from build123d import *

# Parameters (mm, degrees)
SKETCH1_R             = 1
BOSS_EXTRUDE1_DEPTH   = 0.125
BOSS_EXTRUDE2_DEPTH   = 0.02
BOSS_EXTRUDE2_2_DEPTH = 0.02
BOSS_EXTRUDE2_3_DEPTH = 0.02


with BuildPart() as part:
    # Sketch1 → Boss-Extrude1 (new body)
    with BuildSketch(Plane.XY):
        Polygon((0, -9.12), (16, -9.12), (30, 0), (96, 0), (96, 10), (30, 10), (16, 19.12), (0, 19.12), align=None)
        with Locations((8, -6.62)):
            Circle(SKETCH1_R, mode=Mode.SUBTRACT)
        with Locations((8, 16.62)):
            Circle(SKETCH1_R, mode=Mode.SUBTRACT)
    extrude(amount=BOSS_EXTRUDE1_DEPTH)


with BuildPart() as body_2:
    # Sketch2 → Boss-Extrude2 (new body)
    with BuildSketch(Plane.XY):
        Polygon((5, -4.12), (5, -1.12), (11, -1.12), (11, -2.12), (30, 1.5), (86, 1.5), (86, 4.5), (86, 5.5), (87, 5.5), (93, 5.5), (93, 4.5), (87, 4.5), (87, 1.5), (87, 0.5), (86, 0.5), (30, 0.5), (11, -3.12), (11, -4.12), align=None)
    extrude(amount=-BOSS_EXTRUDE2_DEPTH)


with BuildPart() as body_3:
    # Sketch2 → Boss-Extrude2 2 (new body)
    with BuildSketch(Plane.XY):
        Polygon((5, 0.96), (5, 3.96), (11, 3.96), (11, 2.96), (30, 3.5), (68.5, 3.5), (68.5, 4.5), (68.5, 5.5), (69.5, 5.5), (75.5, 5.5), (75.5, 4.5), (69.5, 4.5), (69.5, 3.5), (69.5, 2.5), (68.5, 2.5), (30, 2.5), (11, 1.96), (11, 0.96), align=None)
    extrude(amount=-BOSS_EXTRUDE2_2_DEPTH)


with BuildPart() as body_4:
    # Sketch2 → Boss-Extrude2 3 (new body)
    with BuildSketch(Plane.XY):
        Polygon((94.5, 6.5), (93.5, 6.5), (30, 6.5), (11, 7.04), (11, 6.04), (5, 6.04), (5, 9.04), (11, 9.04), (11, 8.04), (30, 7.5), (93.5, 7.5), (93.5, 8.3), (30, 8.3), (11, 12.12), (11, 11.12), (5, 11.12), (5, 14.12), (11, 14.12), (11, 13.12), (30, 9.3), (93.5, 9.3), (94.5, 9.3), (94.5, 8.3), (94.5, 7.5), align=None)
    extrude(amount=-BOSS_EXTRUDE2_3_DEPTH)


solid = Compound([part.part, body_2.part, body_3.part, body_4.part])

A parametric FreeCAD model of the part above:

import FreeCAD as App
import Part
import Sketcher

V = App.Vector

doc = App.newDocument("Part")
body = doc.addObject("PartDesign::Body", "Body")

sketch1 = doc.addObject("Sketcher::SketchObject", "Sketch")
body.addObject(sketch1)
sketch1.AttachmentSupport = (doc.XY_Plane, [""])
sketch1.MapMode = "FlatFace"
sketch1.addGeometry([
    Part.LineSegment(V(0, -9.12, 0), V(16, -9.12, 0)),
    Part.LineSegment(V(16, -9.12, 0), V(30, 0, 0)),
    Part.LineSegment(V(30, 0, 0), V(96, 0, 0)),
    Part.LineSegment(V(96, 0, 0), V(96, 10, 0)),
    Part.LineSegment(V(96, 10, 0), V(30, 10, 0)),
    Part.LineSegment(V(30, 10, 0), V(16, 19.12, 0)),
    Part.LineSegment(V(16, 19.12, 0), V(0, 19.12, 0)),
    Part.LineSegment(V(0, 19.12, 0), V(0, -9.12, 0)),
    Part.Circle(V(8, -6.62, 0), V(0, 0, 1), 1),
    Part.Circle(V(8, 16.62, 0), V(0, 0, 1), 1),
], False)
sketch1.addConstraint([
    Sketcher.Constraint("Coincident", 0, 2, 1, 1),
    Sketcher.Constraint("Coincident", 1, 2, 2, 1),
    Sketcher.Constraint("Coincident", 2, 2, 3, 1),
    Sketcher.Constraint("Coincident", 3, 2, 4, 1),
    Sketcher.Constraint("Coincident", 4, 2, 5, 1),
    Sketcher.Constraint("Coincident", 5, 2, 6, 1),
    Sketcher.Constraint("Coincident", 6, 2, 7, 1),
    Sketcher.Constraint("Coincident", 7, 2, 0, 1),
    Sketcher.Constraint("Horizontal", 0),
    Sketcher.Constraint("Horizontal", 2),
    Sketcher.Constraint("Vertical", 3),
    Sketcher.Constraint("Horizontal", 4),
    Sketcher.Constraint("Horizontal", 6),
    Sketcher.Constraint("Vertical", 7),
    Sketcher.Constraint("Equal", 8, 9),
    Sketcher.Constraint("PointOnObject", 1, 2, -1),
    Sketcher.Constraint("PointOnObject", 6, 2, -2),
    Sketcher.Constraint("Vertical", 8, 3, 9, 3),
    Sketcher.Constraint("Vertical", 1, 2, 4, 2),
    Sketcher.Constraint("Vertical", 0, 2, 5, 2),
    Sketcher.Constraint("Equal", 1, 5),
    Sketcher.Constraint("Diameter", 8, 2.0),
    Sketcher.Constraint("DistanceX", 0, 1, 0, 2, 16.0),
    Sketcher.Constraint("DistanceX", 2, 1, 2, 2, 66.0),
    Sketcher.Constraint("DistanceY", 3, 1, 3, 2, 10.0),
    Sketcher.Constraint("DistanceX", -1, 1, 8, 3, 8.0),
    Sketcher.Constraint("DistanceX", -1, 1, 1, 2, 30.0),
    Sketcher.Constraint("DistanceY", 7, 2, 7, 1, 28.24),
    Sketcher.Constraint("DistanceY", 0, 2, 8, 3, 2.5),
    Sketcher.Constraint("DistanceY", 9, 3, 5, 2, 2.5),
])
pad1 = doc.addObject("PartDesign::Pad", "Pad")
body.addObject(pad1)
pad1.Profile = sketch1
pad1.Length = 0.125
body2 = doc.addObject("PartDesign::Body", "Body001")

sketch2 = doc.addObject("Sketcher::SketchObject", "Sketch001")
body2.addObject(sketch2)
sketch2.AttachmentSupport = (doc.getObject("XY_Plane001"), [""])
sketch2.MapMode = "FlatFace"
sketch2.addGeometry([
    Part.LineSegment(V(5, -1.12, 0), V(5, -4.12, 0)),
    Part.LineSegment(V(5, -4.12, 0), V(11, -4.12, 0)),
    Part.LineSegment(V(11, -4.12, 0), V(11, -3.12, 0)),
    Part.LineSegment(V(11, -3.12, 0), V(30, 0.5, 0)),
    Part.LineSegment(V(30, 0.5, 0), V(87, 0.5, 0)),
    Part.LineSegment(V(87, 0.5, 0), V(87, 4.5, 0)),
    Part.LineSegment(V(87, 4.5, 0), V(93, 4.5, 0)),
    Part.LineSegment(V(93, 4.5, 0), V(93, 5.5, 0)),
    Part.LineSegment(V(93, 5.5, 0), V(86, 5.5, 0)),
    Part.LineSegment(V(86, 5.5, 0), V(86, 1.5, 0)),
    Part.LineSegment(V(86, 1.5, 0), V(30, 1.5, 0)),
    Part.LineSegment(V(30, 1.5, 0), V(11, -2.12, 0)),
    Part.LineSegment(V(11, -2.12, 0), V(11, -1.12, 0)),
    Part.LineSegment(V(11, -1.12, 0), V(5, -1.12, 0)),
], False)
sketch2.addConstraint([
    Sketcher.Constraint("Coincident", 0, 2, 1, 1),
    Sketcher.Constraint("Coincident", 1, 2, 2, 1),
    Sketcher.Constraint("Coincident", 2, 2, 3, 1),
    Sketcher.Constraint("Coincident", 3, 2, 4, 1),
    Sketcher.Constraint("Coincident", 4, 2, 5, 1),
    Sketcher.Constraint("Coincident", 5, 2, 6, 1),
    Sketcher.Constraint("Coincident", 6, 2, 7, 1),
    Sketcher.Constraint("Coincident", 7, 2, 8, 1),
    Sketcher.Constraint("Coincident", 8, 2, 9, 1),
    Sketcher.Constraint("Coincident", 9, 2, 10, 1),
    Sketcher.Constraint("Coincident", 10, 2, 11, 1),
    Sketcher.Constraint("Coincident", 11, 2, 12, 1),
    Sketcher.Constraint("Coincident", 12, 2, 13, 1),
    Sketcher.Constraint("Coincident", 13, 2, 0, 1),
    Sketcher.Constraint("Vertical", 0),
    Sketcher.Constraint("Horizontal", 1),
    Sketcher.Constraint("Vertical", 2),
    Sketcher.Constraint("Horizontal", 4),
    Sketcher.Constraint("Vertical", 5),
    Sketcher.Constraint("Horizontal", 6),
    Sketcher.Constraint("Vertical", 7),
    Sketcher.Constraint("Horizontal", 8),
    Sketcher.Constraint("Vertical", 9),
    Sketcher.Constraint("Horizontal", 10),
    Sketcher.Constraint("Vertical", 12),
    Sketcher.Constraint("Horizontal", 13),
    Sketcher.Constraint("Parallel", 3, 11),
    Sketcher.Constraint("Vertical", 3, 2, 10, 2),
    Sketcher.Constraint("Vertical", 2, 2, 11, 2),
    Sketcher.Constraint("Equal", 1, 6),
    Sketcher.Constraint("Equal", 2, 7),
    Sketcher.Constraint("Equal", 5, 9),
    Sketcher.Constraint("Equal", 7, 12),
    Sketcher.Constraint("DistanceX", 1, 1, 1, 2, 6.0),
    Sketcher.Constraint("DistanceX", 4, 1, 4, 2, 57.0),
    Sketcher.Constraint("DistanceX", 8, 2, 8, 1, 7.0),
    Sketcher.Constraint("DistanceY", 0, 2, 0, 1, 3.0),
    Sketcher.Constraint("DistanceY", 5, 1, 5, 2, 4.0),
    Sketcher.Constraint("DistanceX", -1, 1, 0, 2, 5.0),
    Sketcher.Constraint("DistanceX", -1, 1, 3, 2, 30.0),
    Sketcher.Constraint("DistanceY", -1, 1, 3, 2, 0.5),
    Sketcher.Constraint("DistanceY", 0, 2, -1, 1, 4.12),
])
pad2 = doc.addObject("PartDesign::Pad", "Pad001")
body2.addObject(pad2)
pad2.Profile = sketch2
pad2.Length = 0.02
pad2.Reversed = True
body3 = doc.addObject("PartDesign::Body", "Body002")

sketch3 = doc.addObject("Sketcher::SketchObject", "Sketch002")
body3.addObject(sketch3)
sketch3.AttachmentSupport = (doc.getObject("XY_Plane002"), [""])
sketch3.MapMode = "FlatFace"
sketch3.addGeometry([
    Part.LineSegment(V(5, 3.96, 0), V(5, 0.96, 0)),
    Part.LineSegment(V(5, 0.96, 0), V(11, 0.96, 0)),
    Part.LineSegment(V(11, 0.96, 0), V(11, 1.96, 0)),
    Part.LineSegment(V(11, 1.96, 0), V(30, 2.5, 0)),
    Part.LineSegment(V(30, 2.5, 0), V(69.5, 2.5, 0)),
    Part.LineSegment(V(69.5, 2.5, 0), V(69.5, 4.5, 0)),
    Part.LineSegment(V(69.5, 4.5, 0), V(75.5, 4.5, 0)),
    Part.LineSegment(V(75.5, 4.5, 0), V(75.5, 5.5, 0)),
    Part.LineSegment(V(75.5, 5.5, 0), V(68.5, 5.5, 0)),
    Part.LineSegment(V(68.5, 5.5, 0), V(68.5, 3.5, 0)),
    Part.LineSegment(V(68.5, 3.5, 0), V(30, 3.5, 0)),
    Part.LineSegment(V(30, 3.5, 0), V(11, 2.96, 0)),
    Part.LineSegment(V(11, 2.96, 0), V(11, 3.96, 0)),
    Part.LineSegment(V(11, 3.96, 0), V(5, 3.96, 0)),
], False)
sketch3.addConstraint([
    Sketcher.Constraint("Coincident", 0, 2, 1, 1),
    Sketcher.Constraint("Coincident", 1, 2, 2, 1),
    Sketcher.Constraint("Coincident", 2, 2, 3, 1),
    Sketcher.Constraint("Coincident", 3, 2, 4, 1),
    Sketcher.Constraint("Coincident", 4, 2, 5, 1),
    Sketcher.Constraint("Coincident", 5, 2, 6, 1),
    Sketcher.Constraint("Coincident", 6, 2, 7, 1),
    Sketcher.Constraint("Coincident", 7, 2, 8, 1),
    Sketcher.Constraint("Coincident", 8, 2, 9, 1),
    Sketcher.Constraint("Coincident", 9, 2, 10, 1),
    Sketcher.Constraint("Coincident", 10, 2, 11, 1),
    Sketcher.Constraint("Coincident", 11, 2, 12, 1),
    Sketcher.Constraint("Coincident", 12, 2, 13, 1),
    Sketcher.Constraint("Coincident", 13, 2, 0, 1),
    Sketcher.Constraint("Vertical", 0),
    Sketcher.Constraint("Horizontal", 1),
    Sketcher.Constraint("Vertical", 2),
    Sketcher.Constraint("Horizontal", 4),
    Sketcher.Constraint("Vertical", 5),
    Sketcher.Constraint("Horizontal", 6),
    Sketcher.Constraint("Vertical", 7),
    Sketcher.Constraint("Horizontal", 8),
    Sketcher.Constraint("Vertical", 9),
    Sketcher.Constraint("Horizontal", 10),
    Sketcher.Constraint("Vertical", 12),
    Sketcher.Constraint("Horizontal", 13),
    Sketcher.Constraint("Parallel", 3, 11),
    Sketcher.Constraint("Vertical", 3, 2, 10, 2),
    Sketcher.Constraint("Vertical", 2, 2, 11, 2),
    Sketcher.Constraint("Equal", 1, 6),
    Sketcher.Constraint("Equal", 2, 7),
    Sketcher.Constraint("Equal", 5, 9),
    Sketcher.Constraint("Equal", 7, 12),
    Sketcher.Constraint("DistanceX", 1, 1, 1, 2, 6.0),
    Sketcher.Constraint("DistanceX", 8, 2, 8, 1, 7.0),
    Sketcher.Constraint("DistanceY", 0, 2, 0, 1, 3.0),
    Sketcher.Constraint("DistanceY", 5, 1, 5, 2, 2.0),
    Sketcher.Constraint("DistanceX", 4, 1, 4, 2, 39.5),
    Sketcher.Constraint("DistanceX", -1, 1, 0, 2, 5.0),
    Sketcher.Constraint("DistanceX", -1, 1, 3, 2, 30.0),
    Sketcher.Constraint("DistanceY", -1, 1, 3, 2, 2.5),
    Sketcher.Constraint("DistanceY", -1, 1, 0, 2, 0.96),
])
pad3 = doc.addObject("PartDesign::Pad", "Pad002")
body3.addObject(pad3)
pad3.Profile = sketch3
pad3.Length = 0.02
pad3.Reversed = True
body4 = doc.addObject("PartDesign::Body", "Body003")

sketch4 = doc.addObject("Sketcher::SketchObject", "Sketch003")
body4.addObject(sketch4)
sketch4.AttachmentSupport = (doc.getObject("XY_Plane003"), [""])
sketch4.MapMode = "FlatFace"
sketch4.addGeometry([
    Part.LineSegment(V(30, 6.5, 0), V(94.5, 6.5, 0)),
    Part.LineSegment(V(94.5, 6.5, 0), V(94.5, 9.3, 0)),
    Part.LineSegment(V(94.5, 9.3, 0), V(30, 9.3, 0)),
    Part.LineSegment(V(30, 9.3, 0), V(11, 13.12, 0)),
    Part.LineSegment(V(11, 13.12, 0), V(11, 14.12, 0)),
    Part.LineSegment(V(11, 14.12, 0), V(5, 14.12, 0)),
    Part.LineSegment(V(5, 14.12, 0), V(5, 11.12, 0)),
    Part.LineSegment(V(5, 11.12, 0), V(11, 11.12, 0)),
    Part.LineSegment(V(11, 11.12, 0), V(11, 12.12, 0)),
    Part.LineSegment(V(11, 12.12, 0), V(30, 8.3, 0)),
    Part.LineSegment(V(30, 8.3, 0), V(93.5, 8.3, 0)),
    Part.LineSegment(V(93.5, 8.3, 0), V(93.5, 7.5, 0)),
    Part.LineSegment(V(93.5, 7.5, 0), V(30, 7.5, 0)),
    Part.LineSegment(V(30, 7.5, 0), V(11, 8.04, 0)),
    Part.LineSegment(V(11, 8.04, 0), V(11, 9.04, 0)),
    Part.LineSegment(V(11, 9.04, 0), V(5, 9.04, 0)),
    Part.LineSegment(V(5, 9.04, 0), V(5, 6.04, 0)),
    Part.LineSegment(V(5, 6.04, 0), V(11, 6.04, 0)),
    Part.LineSegment(V(11, 6.04, 0), V(11, 7.04, 0)),
    Part.LineSegment(V(11, 7.04, 0), V(30, 6.5, 0)),
], False)
sketch4.addConstraint([
    Sketcher.Constraint("Coincident", 0, 2, 1, 1),
    Sketcher.Constraint("Coincident", 1, 2, 2, 1),
    Sketcher.Constraint("Coincident", 2, 2, 3, 1),
    Sketcher.Constraint("Coincident", 3, 2, 4, 1),
    Sketcher.Constraint("Coincident", 4, 2, 5, 1),
    Sketcher.Constraint("Coincident", 5, 2, 6, 1),
    Sketcher.Constraint("Coincident", 6, 2, 7, 1),
    Sketcher.Constraint("Coincident", 7, 2, 8, 1),
    Sketcher.Constraint("Coincident", 8, 2, 9, 1),
    Sketcher.Constraint("Coincident", 9, 2, 10, 1),
    Sketcher.Constraint("Coincident", 10, 2, 11, 1),
    Sketcher.Constraint("Coincident", 11, 2, 12, 1),
    Sketcher.Constraint("Coincident", 12, 2, 13, 1),
    Sketcher.Constraint("Coincident", 13, 2, 14, 1),
    Sketcher.Constraint("Coincident", 14, 2, 15, 1),
    Sketcher.Constraint("Coincident", 15, 2, 16, 1),
    Sketcher.Constraint("Coincident", 16, 2, 17, 1),
    Sketcher.Constraint("Coincident", 17, 2, 18, 1),
    Sketcher.Constraint("Coincident", 18, 2, 19, 1),
    Sketcher.Constraint("Coincident", 19, 2, 0, 1),
    Sketcher.Constraint("Horizontal", 0),
    Sketcher.Constraint("Vertical", 1),
    Sketcher.Constraint("Horizontal", 2),
    Sketcher.Constraint("Vertical", 4),
    Sketcher.Constraint("Horizontal", 5),
    Sketcher.Constraint("Vertical", 6),
    Sketcher.Constraint("Horizontal", 7),
    Sketcher.Constraint("Vertical", 8),
    Sketcher.Constraint("Horizontal", 10),
    Sketcher.Constraint("Vertical", 11),
    Sketcher.Constraint("Horizontal", 12),
    Sketcher.Constraint("Vertical", 14),
    Sketcher.Constraint("Horizontal", 15),
    Sketcher.Constraint("Vertical", 16),
    Sketcher.Constraint("Horizontal", 17),
    Sketcher.Constraint("Vertical", 18),
    Sketcher.Constraint("Parallel", 3, 9),
    Sketcher.Constraint("Parallel", 13, 19),
    Sketcher.Constraint("Vertical", 4, 2, 7, 2),
    Sketcher.Constraint("Vertical", 2, 2, 9, 2),
    Sketcher.Constraint("Vertical", 9, 2, 12, 2),
    Sketcher.Constraint("Vertical", 8, 2, 13, 2),
    Sketcher.Constraint("Vertical", 6, 2, 15, 2),
    Sketcher.Constraint("Vertical", 14, 2, 17, 2),
    Sketcher.Constraint("Vertical", 12, 2, 19, 2),
    Sketcher.Constraint("Equal", 4, 8),
    Sketcher.Constraint("Equal", 8, 14),
    Sketcher.Constraint("Equal", 6, 16),
    Sketcher.Constraint("Equal", 14, 18),
    Sketcher.Constraint("DistanceX", 5, 2, 5, 1, 6.0),
    Sketcher.Constraint("DistanceY", 4, 1, 4, 2, 1.0),
    Sketcher.Constraint("DistanceY", 6, 2, 6, 1, 3.0),
    Sketcher.Constraint("DistanceX", 0, 1, 0, 2, 64.5),
    Sketcher.Constraint("DistanceX", 10, 1, 10, 2, 63.5),
    Sketcher.Constraint("DistanceY", 1, 1, 1, 2, 2.8),
    Sketcher.Constraint("DistanceX", -1, 1, 2, 2, 30.0),
    Sketcher.Constraint("DistanceX", -1, 1, 3, 2, 11.0),
    Sketcher.Constraint("DistanceY", -1, 1, 0, 2, 6.5),
    Sketcher.Constraint("DistanceY", -1, 1, 3, 2, 13.12),
    Sketcher.Constraint("DistanceY", -1, 1, 13, 2, 8.04),
])
pad4 = doc.addObject("PartDesign::Pad", "Pad003")
body4.addObject(pad4)
pad4.Profile = sketch4
pad4.Length = 0.02
pad4.Reversed = True

doc.recompute()
